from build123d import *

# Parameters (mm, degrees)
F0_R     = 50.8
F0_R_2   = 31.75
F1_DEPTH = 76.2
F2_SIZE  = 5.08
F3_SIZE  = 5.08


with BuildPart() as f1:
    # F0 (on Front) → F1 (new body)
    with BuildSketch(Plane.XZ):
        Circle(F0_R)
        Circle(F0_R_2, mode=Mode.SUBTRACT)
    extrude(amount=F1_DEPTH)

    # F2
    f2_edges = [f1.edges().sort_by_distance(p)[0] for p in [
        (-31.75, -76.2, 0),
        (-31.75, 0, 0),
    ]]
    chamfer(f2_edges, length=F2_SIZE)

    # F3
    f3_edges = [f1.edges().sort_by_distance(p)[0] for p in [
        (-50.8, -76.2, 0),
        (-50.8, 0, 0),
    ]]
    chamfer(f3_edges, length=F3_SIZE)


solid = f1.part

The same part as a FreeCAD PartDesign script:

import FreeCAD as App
import Part
import Sketcher
Q = App.Units.Quantity


def edges_at(feature, points):
    """Names of the edges that pass closest to the given points."""
    edges = feature.Shape.Edges
    near = lambda p: min(range(len(edges)), key=lambda i: edges[i].distToShape(Part.Vertex(*p))[0])
    return sorted({f"Edge{near(p) + 1}" for p in points})

doc = App.newDocument("Part")
body = doc.addObject("PartDesign::Body", "Body")

# Sketch on XZ plane
sketch1 = doc.addObject("Sketcher::SketchObject", "Sketch")
body.addObject(sketch1)
sketch1.AttachmentSupport = (doc.XZ_Plane, [""])
sketch1.MapMode = "FlatFace"
sketch1.addGeometry([
    Part.Circle(App.Vector(0, 0, 0), App.Vector(0, 0, 1), 50.8),
    Part.Circle(App.Vector(0, 0, 0), App.Vector(0, 0, 1), 31.75),
], False)
sketch1.addConstraint([
    Sketcher.Constraint("Coincident", 0, 3, -1, 1),
    Sketcher.Constraint("Coincident", 1, 3, -1, 1),
    Sketcher.Constraint("Diameter", 0, Q("4 in")),
    Sketcher.Constraint("Diameter", 1, Q("2.5 in")),
])
pad1 = doc.addObject("PartDesign::Pad", "Pad")
body.addObject(pad1)
pad1.Profile = sketch1
pad1.Length = Q("3 in")
doc.recompute()

chamfer = doc.addObject("PartDesign::Chamfer", "Chamfer")
body.addObject(chamfer)
chamfer.Base = (pad1, edges_at(pad1, [(-31.75, -76.2, 0), (-31.75, 0, 0)]))
chamfer.Size = Q("0.2 in")
doc.recompute()

chamfer2 = doc.addObject("PartDesign::Chamfer", "Chamfer001")
body.addObject(chamfer2)
chamfer2.Base = (chamfer, edges_at(chamfer, [(-50.8, -76.2, 0), (-50.8, 0, 0)]))
chamfer2.Size = Q("0.2 in")

doc.recompute()
